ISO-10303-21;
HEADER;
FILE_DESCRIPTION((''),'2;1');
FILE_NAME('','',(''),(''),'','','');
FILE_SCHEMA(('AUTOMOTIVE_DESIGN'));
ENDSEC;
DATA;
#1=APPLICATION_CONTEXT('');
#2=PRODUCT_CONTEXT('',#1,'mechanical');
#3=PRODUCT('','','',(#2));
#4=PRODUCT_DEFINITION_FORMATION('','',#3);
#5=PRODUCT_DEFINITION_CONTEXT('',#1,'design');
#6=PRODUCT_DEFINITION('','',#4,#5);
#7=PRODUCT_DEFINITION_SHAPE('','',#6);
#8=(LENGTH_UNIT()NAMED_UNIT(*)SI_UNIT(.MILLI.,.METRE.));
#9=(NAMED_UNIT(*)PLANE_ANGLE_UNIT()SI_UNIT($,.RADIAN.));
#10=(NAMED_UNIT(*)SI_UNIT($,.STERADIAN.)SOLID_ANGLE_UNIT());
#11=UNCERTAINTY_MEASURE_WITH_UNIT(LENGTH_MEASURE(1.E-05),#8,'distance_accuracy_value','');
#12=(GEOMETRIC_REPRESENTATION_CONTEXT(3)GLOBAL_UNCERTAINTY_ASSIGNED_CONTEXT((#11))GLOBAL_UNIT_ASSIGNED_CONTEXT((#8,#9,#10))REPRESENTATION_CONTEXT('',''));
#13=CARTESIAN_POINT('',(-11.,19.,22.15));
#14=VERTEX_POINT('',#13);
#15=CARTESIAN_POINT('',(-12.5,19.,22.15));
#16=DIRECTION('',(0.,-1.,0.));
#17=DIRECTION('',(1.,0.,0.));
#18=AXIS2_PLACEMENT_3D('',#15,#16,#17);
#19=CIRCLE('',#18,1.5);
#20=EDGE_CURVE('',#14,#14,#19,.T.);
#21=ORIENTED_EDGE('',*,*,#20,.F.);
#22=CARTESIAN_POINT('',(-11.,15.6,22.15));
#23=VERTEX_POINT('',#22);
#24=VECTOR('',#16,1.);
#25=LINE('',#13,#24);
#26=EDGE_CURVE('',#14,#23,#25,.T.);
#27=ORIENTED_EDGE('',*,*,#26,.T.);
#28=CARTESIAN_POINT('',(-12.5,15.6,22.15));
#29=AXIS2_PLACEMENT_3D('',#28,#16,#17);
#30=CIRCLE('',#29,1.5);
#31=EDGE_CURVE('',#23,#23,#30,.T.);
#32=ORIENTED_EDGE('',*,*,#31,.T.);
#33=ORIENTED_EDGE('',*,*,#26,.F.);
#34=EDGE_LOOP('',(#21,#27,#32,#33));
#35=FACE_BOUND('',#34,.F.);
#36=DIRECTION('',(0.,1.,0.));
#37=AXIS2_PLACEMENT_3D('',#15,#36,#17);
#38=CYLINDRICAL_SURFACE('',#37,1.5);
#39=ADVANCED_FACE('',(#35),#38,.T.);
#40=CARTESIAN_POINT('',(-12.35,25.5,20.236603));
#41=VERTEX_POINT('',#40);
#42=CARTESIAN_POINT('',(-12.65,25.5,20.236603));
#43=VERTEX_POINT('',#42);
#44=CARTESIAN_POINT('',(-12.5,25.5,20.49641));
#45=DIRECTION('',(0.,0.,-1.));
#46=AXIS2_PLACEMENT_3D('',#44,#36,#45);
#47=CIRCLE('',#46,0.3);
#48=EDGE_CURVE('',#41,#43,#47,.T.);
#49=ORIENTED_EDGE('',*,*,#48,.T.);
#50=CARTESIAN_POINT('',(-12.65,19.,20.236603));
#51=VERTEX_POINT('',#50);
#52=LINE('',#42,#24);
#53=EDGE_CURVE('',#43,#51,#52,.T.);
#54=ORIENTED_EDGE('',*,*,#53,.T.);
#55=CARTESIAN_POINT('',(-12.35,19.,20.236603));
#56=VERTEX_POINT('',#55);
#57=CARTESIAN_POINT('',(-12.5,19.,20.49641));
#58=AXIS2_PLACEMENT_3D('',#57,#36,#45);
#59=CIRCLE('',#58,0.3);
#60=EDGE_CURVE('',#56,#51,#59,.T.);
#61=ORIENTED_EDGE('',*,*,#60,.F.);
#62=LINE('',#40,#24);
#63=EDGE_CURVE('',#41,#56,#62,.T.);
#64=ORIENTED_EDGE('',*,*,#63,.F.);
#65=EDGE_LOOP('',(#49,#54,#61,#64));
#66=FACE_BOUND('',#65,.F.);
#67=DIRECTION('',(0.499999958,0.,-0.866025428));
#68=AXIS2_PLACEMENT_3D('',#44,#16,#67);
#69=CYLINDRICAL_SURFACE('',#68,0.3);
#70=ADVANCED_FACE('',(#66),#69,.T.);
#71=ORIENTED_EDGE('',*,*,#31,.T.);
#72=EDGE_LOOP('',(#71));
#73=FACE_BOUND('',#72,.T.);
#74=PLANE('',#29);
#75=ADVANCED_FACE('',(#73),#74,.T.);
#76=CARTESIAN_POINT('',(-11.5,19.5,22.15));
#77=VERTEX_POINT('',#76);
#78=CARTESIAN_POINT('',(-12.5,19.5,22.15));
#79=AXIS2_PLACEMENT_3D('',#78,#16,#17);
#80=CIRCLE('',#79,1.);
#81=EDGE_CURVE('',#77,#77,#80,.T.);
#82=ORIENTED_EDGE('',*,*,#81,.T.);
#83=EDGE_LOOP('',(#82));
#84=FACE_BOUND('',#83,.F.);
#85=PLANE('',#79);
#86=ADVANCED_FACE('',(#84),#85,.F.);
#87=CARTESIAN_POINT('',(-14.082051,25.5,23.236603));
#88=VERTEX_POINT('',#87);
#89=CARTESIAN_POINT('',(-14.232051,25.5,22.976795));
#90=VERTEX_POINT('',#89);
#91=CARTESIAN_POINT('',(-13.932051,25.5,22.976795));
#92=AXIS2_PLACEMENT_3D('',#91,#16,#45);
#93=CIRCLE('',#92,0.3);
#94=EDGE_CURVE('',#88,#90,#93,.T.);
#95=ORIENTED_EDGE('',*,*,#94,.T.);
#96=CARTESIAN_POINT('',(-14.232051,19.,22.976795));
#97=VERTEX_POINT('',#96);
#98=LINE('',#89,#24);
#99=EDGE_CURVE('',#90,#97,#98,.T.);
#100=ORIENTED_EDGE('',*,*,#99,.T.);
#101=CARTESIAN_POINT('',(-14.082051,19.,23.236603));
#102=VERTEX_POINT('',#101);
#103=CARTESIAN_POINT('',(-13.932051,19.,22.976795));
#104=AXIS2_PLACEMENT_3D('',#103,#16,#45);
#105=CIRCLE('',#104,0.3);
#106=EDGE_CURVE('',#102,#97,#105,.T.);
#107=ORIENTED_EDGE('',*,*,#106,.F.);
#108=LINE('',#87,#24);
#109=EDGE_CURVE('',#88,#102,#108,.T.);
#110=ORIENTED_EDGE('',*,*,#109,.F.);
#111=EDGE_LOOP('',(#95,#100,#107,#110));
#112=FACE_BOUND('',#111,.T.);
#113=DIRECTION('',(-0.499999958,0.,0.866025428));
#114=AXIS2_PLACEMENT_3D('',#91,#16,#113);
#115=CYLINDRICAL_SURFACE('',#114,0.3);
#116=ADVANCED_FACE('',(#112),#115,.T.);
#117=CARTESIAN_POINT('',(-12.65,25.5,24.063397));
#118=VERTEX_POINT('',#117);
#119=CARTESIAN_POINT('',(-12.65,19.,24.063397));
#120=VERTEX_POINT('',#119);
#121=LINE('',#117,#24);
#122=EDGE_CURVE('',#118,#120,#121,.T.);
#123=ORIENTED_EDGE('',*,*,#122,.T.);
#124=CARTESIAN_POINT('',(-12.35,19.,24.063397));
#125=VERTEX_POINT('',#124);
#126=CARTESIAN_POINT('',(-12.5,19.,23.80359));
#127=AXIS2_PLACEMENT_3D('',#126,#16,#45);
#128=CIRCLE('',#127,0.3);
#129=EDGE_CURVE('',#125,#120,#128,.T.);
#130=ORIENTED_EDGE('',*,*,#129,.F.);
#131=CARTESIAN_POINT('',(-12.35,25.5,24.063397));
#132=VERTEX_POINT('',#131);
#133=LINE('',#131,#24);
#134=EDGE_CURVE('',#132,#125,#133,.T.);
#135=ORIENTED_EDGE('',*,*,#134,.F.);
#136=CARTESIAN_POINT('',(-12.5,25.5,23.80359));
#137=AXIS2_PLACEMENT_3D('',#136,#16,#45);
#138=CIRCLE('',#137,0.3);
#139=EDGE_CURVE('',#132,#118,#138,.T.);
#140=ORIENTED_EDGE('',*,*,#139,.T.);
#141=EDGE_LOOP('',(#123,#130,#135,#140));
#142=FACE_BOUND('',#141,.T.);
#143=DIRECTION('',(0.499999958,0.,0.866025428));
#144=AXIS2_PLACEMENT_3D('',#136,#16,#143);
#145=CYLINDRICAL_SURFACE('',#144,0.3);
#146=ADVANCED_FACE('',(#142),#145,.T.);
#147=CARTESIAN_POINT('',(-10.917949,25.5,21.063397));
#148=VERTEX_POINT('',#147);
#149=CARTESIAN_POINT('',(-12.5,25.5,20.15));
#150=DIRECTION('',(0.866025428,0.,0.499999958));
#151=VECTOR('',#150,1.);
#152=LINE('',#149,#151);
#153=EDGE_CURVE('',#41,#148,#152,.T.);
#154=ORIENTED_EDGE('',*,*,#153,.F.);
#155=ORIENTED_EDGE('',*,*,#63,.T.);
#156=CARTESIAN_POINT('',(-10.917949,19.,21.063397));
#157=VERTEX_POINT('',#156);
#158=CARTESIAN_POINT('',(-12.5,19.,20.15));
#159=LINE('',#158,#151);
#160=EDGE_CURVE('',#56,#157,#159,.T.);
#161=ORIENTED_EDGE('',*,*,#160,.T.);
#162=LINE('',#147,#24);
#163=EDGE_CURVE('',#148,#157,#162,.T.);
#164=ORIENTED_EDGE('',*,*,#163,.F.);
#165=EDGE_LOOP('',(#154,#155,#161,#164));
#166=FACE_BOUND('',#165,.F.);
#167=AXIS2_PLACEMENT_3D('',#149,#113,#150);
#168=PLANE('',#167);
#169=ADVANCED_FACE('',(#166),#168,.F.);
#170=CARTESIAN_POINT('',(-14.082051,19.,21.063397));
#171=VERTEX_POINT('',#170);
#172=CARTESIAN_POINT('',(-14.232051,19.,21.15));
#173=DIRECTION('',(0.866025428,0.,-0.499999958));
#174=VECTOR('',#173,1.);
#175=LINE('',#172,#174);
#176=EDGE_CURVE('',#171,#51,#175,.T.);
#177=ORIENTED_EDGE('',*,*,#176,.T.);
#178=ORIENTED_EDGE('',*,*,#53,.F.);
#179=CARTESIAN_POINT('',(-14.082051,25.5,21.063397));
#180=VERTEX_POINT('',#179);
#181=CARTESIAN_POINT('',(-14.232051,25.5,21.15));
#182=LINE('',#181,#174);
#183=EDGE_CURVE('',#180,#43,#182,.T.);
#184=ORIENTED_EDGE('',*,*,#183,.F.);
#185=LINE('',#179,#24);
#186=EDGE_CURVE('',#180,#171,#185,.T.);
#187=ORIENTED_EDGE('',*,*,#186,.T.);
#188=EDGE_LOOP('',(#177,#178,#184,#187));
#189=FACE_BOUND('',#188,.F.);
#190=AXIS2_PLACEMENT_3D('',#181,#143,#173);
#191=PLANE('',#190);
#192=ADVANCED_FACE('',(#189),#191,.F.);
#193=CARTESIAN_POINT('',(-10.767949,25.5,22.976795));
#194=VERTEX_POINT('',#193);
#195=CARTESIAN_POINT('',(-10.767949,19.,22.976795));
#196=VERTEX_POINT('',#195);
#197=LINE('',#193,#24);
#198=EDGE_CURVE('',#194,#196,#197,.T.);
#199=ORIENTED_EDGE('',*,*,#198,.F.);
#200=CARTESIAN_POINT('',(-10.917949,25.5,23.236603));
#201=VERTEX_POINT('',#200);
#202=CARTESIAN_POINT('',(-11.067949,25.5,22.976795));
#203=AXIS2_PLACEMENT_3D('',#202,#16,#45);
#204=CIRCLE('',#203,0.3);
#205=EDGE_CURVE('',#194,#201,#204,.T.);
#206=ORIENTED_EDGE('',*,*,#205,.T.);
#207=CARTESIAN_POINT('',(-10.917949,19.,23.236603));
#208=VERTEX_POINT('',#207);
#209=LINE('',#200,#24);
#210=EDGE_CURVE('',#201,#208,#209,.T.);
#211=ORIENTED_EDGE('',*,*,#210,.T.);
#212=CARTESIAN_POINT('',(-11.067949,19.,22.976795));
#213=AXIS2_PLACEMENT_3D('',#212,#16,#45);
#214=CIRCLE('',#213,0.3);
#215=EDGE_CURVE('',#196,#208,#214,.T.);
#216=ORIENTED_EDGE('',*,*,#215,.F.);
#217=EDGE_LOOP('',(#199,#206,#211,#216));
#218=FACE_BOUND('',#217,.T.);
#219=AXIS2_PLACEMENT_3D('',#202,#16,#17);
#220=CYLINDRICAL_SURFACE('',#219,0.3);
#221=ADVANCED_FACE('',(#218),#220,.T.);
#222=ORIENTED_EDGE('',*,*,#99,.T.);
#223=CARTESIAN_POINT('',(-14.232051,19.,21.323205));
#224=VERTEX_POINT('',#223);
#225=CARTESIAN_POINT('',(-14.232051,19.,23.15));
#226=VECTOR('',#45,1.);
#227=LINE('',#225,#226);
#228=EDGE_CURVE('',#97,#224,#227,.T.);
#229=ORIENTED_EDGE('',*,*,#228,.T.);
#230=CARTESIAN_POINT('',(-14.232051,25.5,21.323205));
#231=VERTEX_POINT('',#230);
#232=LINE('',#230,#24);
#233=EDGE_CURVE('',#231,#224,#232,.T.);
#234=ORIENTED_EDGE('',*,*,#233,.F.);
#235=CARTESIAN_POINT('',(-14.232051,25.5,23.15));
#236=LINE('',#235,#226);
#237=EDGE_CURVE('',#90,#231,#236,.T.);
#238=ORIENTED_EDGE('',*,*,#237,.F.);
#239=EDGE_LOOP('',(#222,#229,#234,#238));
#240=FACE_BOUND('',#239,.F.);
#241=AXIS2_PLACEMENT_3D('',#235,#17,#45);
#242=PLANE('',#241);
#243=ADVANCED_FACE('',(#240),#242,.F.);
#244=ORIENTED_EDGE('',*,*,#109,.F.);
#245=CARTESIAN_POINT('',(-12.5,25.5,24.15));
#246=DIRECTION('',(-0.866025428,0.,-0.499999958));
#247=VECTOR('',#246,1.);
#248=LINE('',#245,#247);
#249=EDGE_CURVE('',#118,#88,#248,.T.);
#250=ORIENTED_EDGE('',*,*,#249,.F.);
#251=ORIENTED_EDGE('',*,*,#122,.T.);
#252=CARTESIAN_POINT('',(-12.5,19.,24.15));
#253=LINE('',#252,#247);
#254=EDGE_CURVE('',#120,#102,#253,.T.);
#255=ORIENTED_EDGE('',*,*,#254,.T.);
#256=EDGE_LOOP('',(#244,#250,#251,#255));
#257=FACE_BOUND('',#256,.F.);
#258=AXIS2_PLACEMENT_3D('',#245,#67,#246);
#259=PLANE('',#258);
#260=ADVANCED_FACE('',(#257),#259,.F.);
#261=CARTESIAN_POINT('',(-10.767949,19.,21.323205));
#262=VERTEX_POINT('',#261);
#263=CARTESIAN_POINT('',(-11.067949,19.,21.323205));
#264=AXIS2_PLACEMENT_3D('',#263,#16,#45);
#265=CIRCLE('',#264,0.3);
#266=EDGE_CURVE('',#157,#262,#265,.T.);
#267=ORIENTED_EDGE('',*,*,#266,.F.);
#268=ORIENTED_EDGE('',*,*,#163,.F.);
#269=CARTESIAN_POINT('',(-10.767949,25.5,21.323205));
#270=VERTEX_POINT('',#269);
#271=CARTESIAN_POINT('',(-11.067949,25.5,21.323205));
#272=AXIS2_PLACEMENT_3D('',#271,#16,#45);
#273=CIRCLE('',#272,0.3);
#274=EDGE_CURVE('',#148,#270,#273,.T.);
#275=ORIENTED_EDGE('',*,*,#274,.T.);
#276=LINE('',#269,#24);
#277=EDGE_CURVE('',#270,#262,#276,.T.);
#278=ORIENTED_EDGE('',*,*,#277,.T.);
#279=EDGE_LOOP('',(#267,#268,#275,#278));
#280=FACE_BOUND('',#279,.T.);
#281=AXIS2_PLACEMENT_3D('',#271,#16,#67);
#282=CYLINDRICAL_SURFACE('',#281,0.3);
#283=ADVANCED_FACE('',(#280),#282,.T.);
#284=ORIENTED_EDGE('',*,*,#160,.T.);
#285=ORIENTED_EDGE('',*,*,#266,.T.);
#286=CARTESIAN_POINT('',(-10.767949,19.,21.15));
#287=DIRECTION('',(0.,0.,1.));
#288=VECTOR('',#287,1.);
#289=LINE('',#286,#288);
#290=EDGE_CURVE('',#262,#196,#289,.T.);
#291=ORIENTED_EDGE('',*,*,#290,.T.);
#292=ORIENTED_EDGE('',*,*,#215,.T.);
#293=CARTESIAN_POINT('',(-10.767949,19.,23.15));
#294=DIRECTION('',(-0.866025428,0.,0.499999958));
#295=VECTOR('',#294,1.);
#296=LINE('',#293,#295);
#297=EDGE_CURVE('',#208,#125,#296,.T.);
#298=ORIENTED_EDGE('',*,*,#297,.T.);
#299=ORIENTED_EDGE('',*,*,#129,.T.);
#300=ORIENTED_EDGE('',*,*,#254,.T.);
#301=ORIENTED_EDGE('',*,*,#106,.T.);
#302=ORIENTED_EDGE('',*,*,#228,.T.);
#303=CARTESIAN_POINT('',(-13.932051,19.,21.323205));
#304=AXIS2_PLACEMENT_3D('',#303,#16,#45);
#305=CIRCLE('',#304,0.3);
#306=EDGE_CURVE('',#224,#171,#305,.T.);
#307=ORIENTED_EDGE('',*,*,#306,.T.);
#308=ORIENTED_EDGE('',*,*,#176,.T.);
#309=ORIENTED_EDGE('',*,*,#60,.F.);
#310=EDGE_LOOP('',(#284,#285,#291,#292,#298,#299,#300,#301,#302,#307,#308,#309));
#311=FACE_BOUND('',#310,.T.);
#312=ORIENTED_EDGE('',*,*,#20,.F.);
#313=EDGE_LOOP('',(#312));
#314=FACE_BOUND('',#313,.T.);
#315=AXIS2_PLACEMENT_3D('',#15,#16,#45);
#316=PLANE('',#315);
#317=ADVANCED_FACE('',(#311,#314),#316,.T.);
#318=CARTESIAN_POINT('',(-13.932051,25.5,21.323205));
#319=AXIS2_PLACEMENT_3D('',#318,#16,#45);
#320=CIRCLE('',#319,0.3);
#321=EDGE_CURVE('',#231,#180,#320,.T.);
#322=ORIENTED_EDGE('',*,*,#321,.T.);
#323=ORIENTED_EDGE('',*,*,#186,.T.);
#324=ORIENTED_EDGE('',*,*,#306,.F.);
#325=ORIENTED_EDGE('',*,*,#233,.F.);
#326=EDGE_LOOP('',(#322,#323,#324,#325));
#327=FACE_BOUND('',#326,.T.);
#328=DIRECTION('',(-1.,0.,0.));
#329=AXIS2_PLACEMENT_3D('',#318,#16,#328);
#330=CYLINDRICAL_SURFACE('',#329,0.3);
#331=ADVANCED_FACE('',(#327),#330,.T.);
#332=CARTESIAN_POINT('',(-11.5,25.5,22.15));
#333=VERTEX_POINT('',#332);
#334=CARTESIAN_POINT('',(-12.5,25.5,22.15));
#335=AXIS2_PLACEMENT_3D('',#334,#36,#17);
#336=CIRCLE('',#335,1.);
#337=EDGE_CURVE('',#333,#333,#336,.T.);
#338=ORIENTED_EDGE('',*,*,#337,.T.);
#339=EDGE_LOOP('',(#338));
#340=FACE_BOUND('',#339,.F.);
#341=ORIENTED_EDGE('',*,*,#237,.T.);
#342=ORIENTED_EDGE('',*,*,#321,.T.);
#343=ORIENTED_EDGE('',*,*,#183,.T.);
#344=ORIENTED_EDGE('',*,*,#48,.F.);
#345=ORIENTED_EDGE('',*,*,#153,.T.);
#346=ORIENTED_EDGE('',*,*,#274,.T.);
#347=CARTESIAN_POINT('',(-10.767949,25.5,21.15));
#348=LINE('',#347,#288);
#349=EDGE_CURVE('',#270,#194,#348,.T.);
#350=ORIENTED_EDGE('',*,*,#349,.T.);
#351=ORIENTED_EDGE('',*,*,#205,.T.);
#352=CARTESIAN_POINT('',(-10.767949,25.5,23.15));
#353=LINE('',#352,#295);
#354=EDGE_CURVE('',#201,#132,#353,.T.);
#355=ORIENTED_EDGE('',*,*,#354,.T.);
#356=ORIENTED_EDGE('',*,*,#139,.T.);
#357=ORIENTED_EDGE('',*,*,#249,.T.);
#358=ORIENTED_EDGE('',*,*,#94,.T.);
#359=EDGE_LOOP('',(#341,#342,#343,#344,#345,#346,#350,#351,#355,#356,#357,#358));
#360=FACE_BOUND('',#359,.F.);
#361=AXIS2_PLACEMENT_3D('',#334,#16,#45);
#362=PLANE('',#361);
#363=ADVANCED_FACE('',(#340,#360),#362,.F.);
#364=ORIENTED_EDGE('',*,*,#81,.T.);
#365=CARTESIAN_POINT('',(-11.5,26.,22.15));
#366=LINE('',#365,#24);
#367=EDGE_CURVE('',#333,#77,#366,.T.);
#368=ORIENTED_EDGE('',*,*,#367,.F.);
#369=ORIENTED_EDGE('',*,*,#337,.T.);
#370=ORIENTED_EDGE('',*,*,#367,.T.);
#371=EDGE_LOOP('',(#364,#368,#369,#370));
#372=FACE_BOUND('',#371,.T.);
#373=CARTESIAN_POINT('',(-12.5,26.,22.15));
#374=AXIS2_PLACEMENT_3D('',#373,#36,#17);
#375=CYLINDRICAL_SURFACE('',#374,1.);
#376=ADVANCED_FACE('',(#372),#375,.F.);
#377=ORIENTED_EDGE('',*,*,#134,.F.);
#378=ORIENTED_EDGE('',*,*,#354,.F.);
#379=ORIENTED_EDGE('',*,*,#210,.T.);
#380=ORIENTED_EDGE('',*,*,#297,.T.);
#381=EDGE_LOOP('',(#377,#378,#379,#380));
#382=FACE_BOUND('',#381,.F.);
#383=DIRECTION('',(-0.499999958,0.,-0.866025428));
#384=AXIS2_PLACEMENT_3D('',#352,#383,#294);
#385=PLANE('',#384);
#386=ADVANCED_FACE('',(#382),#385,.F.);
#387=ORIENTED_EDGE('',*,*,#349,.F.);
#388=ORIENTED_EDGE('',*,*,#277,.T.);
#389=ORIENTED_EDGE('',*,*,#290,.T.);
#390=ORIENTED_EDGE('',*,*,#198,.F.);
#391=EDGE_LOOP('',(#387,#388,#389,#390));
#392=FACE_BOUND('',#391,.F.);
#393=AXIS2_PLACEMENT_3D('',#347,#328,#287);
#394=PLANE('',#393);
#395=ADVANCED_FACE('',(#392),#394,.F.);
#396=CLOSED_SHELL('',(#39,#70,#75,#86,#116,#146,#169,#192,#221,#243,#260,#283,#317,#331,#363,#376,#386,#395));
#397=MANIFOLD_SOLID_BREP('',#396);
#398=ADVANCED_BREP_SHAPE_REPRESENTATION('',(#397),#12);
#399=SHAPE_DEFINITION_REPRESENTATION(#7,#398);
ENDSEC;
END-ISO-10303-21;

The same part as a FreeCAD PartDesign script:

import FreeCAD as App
import Part
import Sketcher
from FreeCAD import Vector
Q = App.Units.Quantity


def edges_at(feature, points):
    """Names of the edges that pass closest to the given points."""
    edges = feature.Shape.Edges
    near = lambda p: min(range(len(edges)), key=lambda i: edges[i].distToShape(Part.Vertex(*p))[0])
    return sorted({f"Edge{near(p) + 1}" for p in points})

doc = App.newDocument("Part")
body = doc.addObject("PartDesign::Body", "Body")

sketch1 = doc.addObject("Sketcher::SketchObject", "Sketch")
body.addObject(sketch1)
sketch1.AttachmentSupport = (doc.XZ_Plane, [""])
sketch1.MapMode = "FlatFace"
sketch1.AttachmentOffset = App.Placement(Vector(0, 0, -25.5), App.Rotation())
sketch1.addGeometry(Part.LineSegment(Vector(12.5, 4.3, 0), Vector(14.2, 5.3, 0)), False)
sketch1.addGeometry(Part.LineSegment(Vector(14.2, 5.3, 0), Vector(14.2, 7.3, 0)), False)
sketch1.addGeometry(Part.LineSegment(Vector(14.2, 7.3, 0), Vector(12.5, 8.3, 0)), False)
sketch1.addGeometry(Part.LineSegment(Vector(12.5, 8.3, 0), Vector(10.8, 7.3, 0)), False)
sketch1.addGeometry(Part.LineSegment(Vector(10.8, 7.3, 0), Vector(10.8, 5.3, 0)), False)
sketch1.addGeometry(Part.LineSegment(Vector(10.8, 5.3, 0), Vector(12.5, 4.3, 0)), False)
sketch1.addConstraint(Sketcher.Constraint("Coincident", 0, 2, 1, 1))
sketch1.addConstraint(Sketcher.Constraint("Coincident", 1, 2, 2, 1))
sketch1.addConstraint(Sketcher.Constraint("Coincident", 2, 2, 3, 1))
sketch1.addConstraint(Sketcher.Constraint("Coincident", 3, 2, 4, 1))
sketch1.addConstraint(Sketcher.Constraint("Coincident", 4, 2, 5, 1))
sketch1.addConstraint(Sketcher.Constraint("Coincident", 5, 2, 0, 1))
sketch1.addConstraint(Sketcher.Constraint("Vertical", 1))
sketch1.addConstraint(Sketcher.Constraint("Vertical", 4))
sketch1.addConstraint(Sketcher.Constraint("Parallel", 0, 3))
sketch1.addConstraint(Sketcher.Constraint("Parallel", 2, 5))
sketch1.addConstraint(Sketcher.Constraint("Horizontal", 1, 2, 3, 2))
sketch1.addConstraint(Sketcher.Constraint("Horizontal", 0, 2, 4, 2))
sketch1.addConstraint(Sketcher.Constraint("Vertical", 2, 2, 5, 2))
sketch1.addConstraint(Sketcher.Constraint("DistanceY", 1, 1, 1, 2, 2.0))
sketch1.addConstraint(Sketcher.Constraint("Angle", 0, Q("29.999997 deg")))
sketch1.addConstraint(Sketcher.Constraint("Distance", 0, 2.0))
sketch1.addConstraint(Sketcher.Constraint("DistanceY", -1, 1, 0, 2, 5.3))
sketch1.addConstraint(Sketcher.Constraint("DistanceX", -1, 1, 2, 2, 12.5))
pad1 = doc.addObject("PartDesign::Pad", "Pad")
body.addObject(pad1)
pad1.Profile = sketch1
pad1.Length = 6.5
doc.recompute()

fillet = doc.addObject("PartDesign::Fillet", "Fillet")
body.addObject(fillet)
fillet.Base = (pad1, edges_at(pad1, [
    (12.5, 22.25, 8.3),
    (14.232, 22.25, 7.3),
    (10.768, 22.25, 7.3),
    (14.232, 22.25, 5.3),
    (12.5, 22.25, 4.3),
    (10.768, 22.25, 5.3),
]))
fillet.Radius = 0.3

sketch2 = doc.addObject("Sketcher::SketchObject", "Sketch001")
body.addObject(sketch2)
sketch2.AttachmentSupport = (doc.XZ_Plane, [""])
sketch2.MapMode = "FlatFace"
sketch2.AttachmentOffset = App.Placement(Vector(0, 0, -19), App.Rotation())
sketch2.addGeometry(Part.Circle(Vector(12.5, 6.3, 0), Vector(0, 0, 1), 1.5), False)
sketch2.addConstraint(Sketcher.Constraint("Diameter", 0, 3.0))
sketch2.addConstraint(Sketcher.Constraint("DistanceX", -1, 1, 0, 3, 12.5))
sketch2.addConstraint(Sketcher.Constraint("DistanceY", -1, 1, 0, 3, 6.3))
pad2 = doc.addObject("PartDesign::Pad", "Pad001")
body.addObject(pad2)
pad2.Profile = sketch2
pad2.Length = 3.4

sketch3 = doc.addObject("Sketcher::SketchObject", "Sketch002")
body.addObject(sketch3)
sketch3.AttachmentSupport = (doc.XZ_Plane, [""])
sketch3.MapMode = "FlatFace"
sketch3.AttachmentOffset = App.Placement(Vector(0, 0, -26), App.Rotation())
sketch3.addGeometry(Part.Circle(Vector(12.5, 6.3, 0), Vector(0, 0, 1), 1), False)
sketch3.addConstraint(Sketcher.Constraint("Diameter", 0, 2.0))
sketch3.addConstraint(Sketcher.Constraint("DistanceX", -1, 1, 0, 3, 12.5))
sketch3.addConstraint(Sketcher.Constraint("DistanceY", -1, 1, 0, 3, 6.3))
pocket1 = doc.addObject("PartDesign::Pocket", "Pocket")
body.addObject(pocket1)
pocket1.Profile = sketch3
pocket1.Length = 6.5
pocket1.Reversed = True
body2 = doc.addObject("PartDesign::Body", "Body001")
doc.recompute()

body.Placement = App.Placement(Vector(-25, 0, 15.85), App.Rotation(Vector(0, 0, 1), 0))
boolean = doc.addObject("PartDesign::Boolean", "Boolean")
body2.addObject(boolean)
boolean.Type = "Fuse"
boolean.addObjects([body])

doc.recompute()
